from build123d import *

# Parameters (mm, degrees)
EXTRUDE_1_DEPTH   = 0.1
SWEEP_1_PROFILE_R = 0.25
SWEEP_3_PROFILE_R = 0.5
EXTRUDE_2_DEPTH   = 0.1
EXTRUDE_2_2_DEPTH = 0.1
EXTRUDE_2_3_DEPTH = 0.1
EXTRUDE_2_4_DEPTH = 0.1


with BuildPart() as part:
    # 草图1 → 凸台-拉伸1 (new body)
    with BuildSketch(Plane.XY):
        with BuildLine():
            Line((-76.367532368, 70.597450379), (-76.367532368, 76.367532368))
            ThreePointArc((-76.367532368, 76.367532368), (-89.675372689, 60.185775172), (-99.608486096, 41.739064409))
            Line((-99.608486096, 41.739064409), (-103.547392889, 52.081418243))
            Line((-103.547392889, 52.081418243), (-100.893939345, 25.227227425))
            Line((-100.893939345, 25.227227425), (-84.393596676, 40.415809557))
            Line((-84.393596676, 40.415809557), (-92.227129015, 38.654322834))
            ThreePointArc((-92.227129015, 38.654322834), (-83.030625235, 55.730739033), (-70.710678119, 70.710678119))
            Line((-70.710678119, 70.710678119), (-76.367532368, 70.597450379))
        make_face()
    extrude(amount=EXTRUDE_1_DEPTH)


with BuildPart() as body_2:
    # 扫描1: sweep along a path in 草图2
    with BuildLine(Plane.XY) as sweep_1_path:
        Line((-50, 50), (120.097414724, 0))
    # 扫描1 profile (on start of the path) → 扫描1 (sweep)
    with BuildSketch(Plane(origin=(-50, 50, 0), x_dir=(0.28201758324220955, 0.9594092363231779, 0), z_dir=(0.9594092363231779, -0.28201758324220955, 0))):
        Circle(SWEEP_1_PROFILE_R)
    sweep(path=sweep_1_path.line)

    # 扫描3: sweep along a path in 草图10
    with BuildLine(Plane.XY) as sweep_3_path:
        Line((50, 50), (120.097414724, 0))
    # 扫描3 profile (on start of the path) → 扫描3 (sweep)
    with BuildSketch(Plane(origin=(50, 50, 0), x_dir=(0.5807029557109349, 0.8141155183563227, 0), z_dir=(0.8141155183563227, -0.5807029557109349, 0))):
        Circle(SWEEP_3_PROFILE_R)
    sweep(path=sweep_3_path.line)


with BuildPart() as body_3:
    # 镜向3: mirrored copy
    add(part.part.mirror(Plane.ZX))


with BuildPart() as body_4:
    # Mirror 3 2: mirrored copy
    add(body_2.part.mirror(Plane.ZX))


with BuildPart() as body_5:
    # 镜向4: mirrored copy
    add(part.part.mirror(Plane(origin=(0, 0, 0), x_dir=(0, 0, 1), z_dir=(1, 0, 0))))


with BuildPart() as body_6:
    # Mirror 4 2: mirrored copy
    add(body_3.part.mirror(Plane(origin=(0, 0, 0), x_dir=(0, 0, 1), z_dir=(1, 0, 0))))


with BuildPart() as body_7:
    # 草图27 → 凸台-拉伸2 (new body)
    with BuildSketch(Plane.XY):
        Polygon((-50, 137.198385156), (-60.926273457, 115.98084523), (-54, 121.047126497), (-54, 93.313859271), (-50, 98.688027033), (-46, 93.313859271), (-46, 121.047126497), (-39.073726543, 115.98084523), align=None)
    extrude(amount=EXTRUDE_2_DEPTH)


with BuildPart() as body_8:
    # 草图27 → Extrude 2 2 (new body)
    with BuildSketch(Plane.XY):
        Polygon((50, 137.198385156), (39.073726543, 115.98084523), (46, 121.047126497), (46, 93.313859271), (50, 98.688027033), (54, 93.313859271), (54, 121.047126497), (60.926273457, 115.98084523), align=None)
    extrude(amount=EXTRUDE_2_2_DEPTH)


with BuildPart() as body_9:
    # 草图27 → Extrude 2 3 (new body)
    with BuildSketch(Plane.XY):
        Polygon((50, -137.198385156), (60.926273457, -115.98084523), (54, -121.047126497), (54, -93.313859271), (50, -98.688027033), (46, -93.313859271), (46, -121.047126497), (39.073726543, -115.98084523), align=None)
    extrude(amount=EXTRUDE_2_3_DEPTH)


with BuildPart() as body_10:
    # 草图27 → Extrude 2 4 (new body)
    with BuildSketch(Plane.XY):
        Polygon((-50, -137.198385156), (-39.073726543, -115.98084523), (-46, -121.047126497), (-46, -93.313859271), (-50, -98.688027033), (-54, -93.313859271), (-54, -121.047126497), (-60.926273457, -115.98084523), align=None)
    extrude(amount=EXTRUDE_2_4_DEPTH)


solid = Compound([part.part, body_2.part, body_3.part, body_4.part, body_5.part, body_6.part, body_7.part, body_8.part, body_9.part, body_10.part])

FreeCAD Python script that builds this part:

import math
import FreeCAD as App
import Part
import Sketcher

V = App.Vector
Q = App.Units.Quantity

doc = App.newDocument("Part")
body = doc.addObject("PartDesign::Body", "Body")

sketch1 = body.newObject("Sketcher::SketchObject", "Sketch")
sketch1.AttachmentSupport = (doc.getObject("XY_Plane"), [""])
sketch1.MapMode = "FlatFace"
sketch1.addGeometry([
    Part.LineSegment(V(-76, 71, 0), V(-76, 76, 0)),
    Part.ArcOfCircle(Part.Circle(V(0, 0, 0), V(0, 0, 1), 108), math.radians(135), math.radians(157)),
    Part.LineSegment(V(-100, 42, 0), V(-104, 52, 0)),
    Part.LineSegment(V(-104, 52, 0), V(-101, 25, 0)),
    Part.LineSegment(V(-101, 25, 0), V(-84, 40, 0)),
    Part.LineSegment(V(-84, 40, 0), V(-92, 39, 0)),
    Part.ArcOfCircle(Part.Circle(V(0, 0, 0), V(0, 0, 1), 100), math.radians(135), math.radians(157)),
    Part.LineSegment(V(-71, 71, 0), V(-76, 71, 0)),
], False)
sketch1.addConstraint([
    Sketcher.Constraint("Coincident", 0, 2, 1, 1),
    Sketcher.Constraint("Coincident", 1, 2, 2, 1),
    Sketcher.Constraint("Coincident", 2, 2, 3, 1),
    Sketcher.Constraint("Coincident", 3, 2, 4, 1),
    Sketcher.Constraint("Coincident", 4, 2, 5, 1),
    Sketcher.Constraint("Coincident", 5, 2, 6, 2),
    Sketcher.Constraint("Coincident", 6, 1, 7, 1),
    Sketcher.Constraint("Coincident", 7, 2, 0, 1),
    Sketcher.Constraint("Vertical", 0),
    Sketcher.Constraint("Coincident", 1, 3, -1, 1),
    Sketcher.Constraint("Coincident", 6, 3, -1, 1),
    Sketcher.Constraint("Radius", 1, Q("108 mm")),
    Sketcher.Constraint("Radius", 6, Q("100 mm")),
    Sketcher.Constraint("DistanceY", 0, 1, 0, 2, Q("5.770082 mm")),
    Sketcher.Constraint("Distance", 5, Q("8.029138 mm")),
    Sketcher.Constraint("DistanceY", -1, 1, 2, 2, Q("52.081418 mm")),
    Sketcher.Constraint("DistanceX", 3, 2, -1, 1, Q("100.893939 mm")),
    Sketcher.Constraint("DistanceY", -1, 1, 4, 2, Q("40.41581 mm")),
    Sketcher.Constraint("DistanceX", 5, 2, -1, 1, Q("92.227129 mm")),
    Sketcher.Constraint("DistanceX", 6, 1, -1, 1, Q("70.710678 mm")),
    Sketcher.Constraint("DistanceY", -1, 1, 7, 2, Q("70.59745 mm")),
    Sketcher.Constraint("DistanceX", 2, 2, 0, 2, Q("27.179861 mm")),
    Sketcher.Constraint("DistanceY", 3, 2, 2, 2, Q("26.854191 mm")),
    Sketcher.Constraint("DistanceX", 1, 2, 4, 2, Q("15.214889 mm")),
])
pad1 = body.newObject("PartDesign::Pad", "Pad")
pad1.Profile = sketch1
pad1.Length = 0.1
body2 = doc.addObject("PartDesign::Body", "Body001")

sketch2 = body2.newObject("Sketcher::SketchObject", "Sketch001")
sketch2.Placement = App.Placement(V(-50, 50, 0), App.Rotation(V(0.282017583, 0.959409236, 0), V(0, 0, 0.999999999), V(0.959409236, -0.282017583, 0), "ZXY"))
sketch2.addGeometry(Part.Circle(V(0, 0, 0), V(0, 0, 1), 0.25), False)
sketch2.addConstraint([
    Sketcher.Constraint("Coincident", 0, 3, -1, 1),
    Sketcher.Constraint("Diameter", 0, Q("0.5 mm")),
])

sketch3 = body2.newObject("Sketcher::SketchObject", "Sketch002")
sketch3.Placement = App.Placement(V(9.551818, 32.49479, 0), App.Rotation(V(0.959409236, -0.282017583, 0), V(0, 0, 0.999999999), V(-0.282017583, -0.959409236, 0), "ZXY"))
sketch3.addGeometry(Part.LineSegment(V(-62, 0, 0), V(115, 0, 0)), False)
sketch3.addConstraint([
    Sketcher.Constraint("Horizontal", 0),
    Sketcher.Constraint("PointOnObject", 0, 1, -1),
    Sketcher.Constraint("DistanceX", 0, 1, 0, 2, Q("177.29391 mm")),
    Sketcher.Constraint("DistanceX", 0, 1, -1, 1, Q("62.071341 mm")),
])
doc.recompute()

additivepipe = body2.newObject("PartDesign::AdditivePipe", "AdditivePipe")
additivepipe.Profile = sketch2
additivepipe.Spine = (sketch3, ["Edge1"])

sketch4 = body2.newObject("Sketcher::SketchObject", "Sketch003")
sketch4.Placement = App.Placement(V(50, 50, 0), App.Rotation(V(0.580702956, 0.814115518, 0), V(0, 0, 1), V(0.814115518, -0.580702956, 0), "ZXY"))
sketch4.addGeometry(Part.Circle(V(0, 0, 0), V(0, 0, 1), 0.5), False)
sketch4.addConstraint([
    Sketcher.Constraint("Coincident", 0, 3, -1, 1),
    Sketcher.Constraint("Diameter", 0, Q("1 mm")),
])

sketch5 = body2.newObject("Sketcher::SketchObject", "Sketch004")
sketch5.Placement = App.Placement(V(40.498761, 56.777168, 0), App.Rotation(V(0.814115518, -0.580702956, 0), V(0, 0, 1), V(-0.580702956, -0.814115518, 0), "ZXY"))
sketch5.addGeometry(Part.LineSegment(V(12, 0, 0), V(98, 0, 0)), False)
sketch5.addConstraint([
    Sketcher.Constraint("Horizontal", 0),
    Sketcher.Constraint("PointOnObject", 0, 1, -1),
    Sketcher.Constraint("DistanceX", 0, 1, 0, 2, Q("86.102541 mm")),
    Sketcher.Constraint("DistanceX", -1, 1, 0, 1, Q("11.670628 mm")),
])
doc.recompute()

additivepipe2 = body2.newObject("PartDesign::AdditivePipe", "AdditivePipe001")
additivepipe2.Profile = sketch4
additivepipe2.Spine = (sketch5, ["Edge1"])
body3 = doc.addObject("PartDesign::Body", "Body002")
doc.recompute()

mirroring = doc.addObject("Part::Mirroring", "Mirroring")
mirroring.Source = body
mirroring.Base = V(0, 0, 0)
mirroring.Normal = V(0, 1, 0)
body3.BaseFeature = mirroring
doc.recompute()
body4 = doc.addObject("PartDesign::Body", "Body003")
doc.recompute()

mirroring2 = doc.addObject("Part::Mirroring", "Mirroring001")
mirroring2.Source = body2
mirroring2.Base = V(0, 0, 0)
mirroring2.Normal = V(0, 1, 0)
body4.BaseFeature = mirroring2
doc.recompute()
body5 = doc.addObject("PartDesign::Body", "Body004")
doc.recompute()

mirroring3 = doc.addObject("Part::Mirroring", "Mirroring002")
mirroring3.Source = body
mirroring3.Base = V(0, 0, 0)
mirroring3.Normal = V(1, 0, 0)
body5.BaseFeature = mirroring3
doc.recompute()
body6 = doc.addObject("PartDesign::Body", "Body005")
doc.recompute()

mirroring4 = doc.addObject("Part::Mirroring", "Mirroring003")
mirroring4.Source = body3
mirroring4.Base = V(0, 0, 0)
mirroring4.Normal = V(1, 0, 0)
body6.BaseFeature = mirroring4
doc.recompute()
body7 = doc.addObject("PartDesign::Body", "Body006")

sketch6 = body7.newObject("Sketcher::SketchObject", "Sketch005")
sketch6.AttachmentSupport = (doc.getObject("XY_Plane006"), [""])
sketch6.MapMode = "FlatFace"
sketch6.addGeometry([
    Part.LineSegment(V(-50, 137, 0), V(-61, 116, 0)),
    Part.LineSegment(V(-61, 116, 0), V(-54, 121, 0)),
    Part.LineSegment(V(-54, 121, 0), V(-54, 93, 0)),
    Part.LineSegment(V(-54, 93, 0), V(-50, 99, 0)),
    Part.LineSegment(V(-50, 99, 0), V(-46, 93, 0)),
    Part.LineSegment(V(-46, 93, 0), V(-46, 121, 0)),
    Part.LineSegment(V(-46, 121, 0), V(-39, 116, 0)),
    Part.LineSegment(V(-39, 116, 0), V(-50, 137, 0)),
], False)
sketch6.addConstraint([
    Sketcher.Constraint("Coincident", 0, 2, 1, 1),
    Sketcher.Constraint("Coincident", 1, 2, 2, 1),
    Sketcher.Constraint("Coincident", 2, 2, 3, 1),
    Sketcher.Constraint("Coincident", 3, 2, 4, 1),
    Sketcher.Constraint("Coincident", 4, 2, 5, 1),
    Sketcher.Constraint("Coincident", 5, 2, 6, 1),
    Sketcher.Constraint("Coincident", 6, 2, 7, 1),
    Sketcher.Constraint("Coincident", 7, 2, 0, 1),
    Sketcher.Constraint("Vertical", 2),
    Sketcher.Constraint("Vertical", 5),
    Sketcher.Constraint("Horizontal", 2, 2, 4, 2),
    Sketcher.Constraint("Horizontal", 1, 2, 5, 2),
    Sketcher.Constraint("Horizontal", 0, 2, 6, 2),
    Sketcher.Constraint("Vertical", 3, 2, 7, 2),
    Sketcher.Constraint("Equal", 3, 4),
    Sketcher.Constraint("Equal", 1, 6),
    Sketcher.Constraint("DistanceX", 1, 2, -1, 1, Q("54 mm")),
    Sketcher.Constraint("DistanceX", 3, 2, -1, 1, Q("50 mm")),
    Sketcher.Constraint("DistanceY", 3, 2, 1, 2, Q("22.359099 mm")),
    Sketcher.Constraint("Distance", 3, Q("6.699379 mm")),
    Sketcher.Constraint("DistanceY", -1, 1, 2, 2, Q("93.313859 mm")),
    Sketcher.Constraint("DistanceY", 0, 2, 1, 2, Q("5.066281 mm")),
    Sketcher.Constraint("DistanceY", 1, 2, 7, 2, Q("16.151259 mm")),
    Sketcher.Constraint("Distance", 0, Q("23.865612 mm")),
])
pad2 = body7.newObject("PartDesign::Pad", "Pad001")
pad2.Profile = sketch6
pad2.Length = 0.1
body8 = doc.addObject("PartDesign::Body", "Body007")

sketch7 = body8.newObject("Sketcher::SketchObject", "Sketch006")
sketch7.AttachmentSupport = (doc.getObject("XY_Plane007"), [""])
sketch7.MapMode = "FlatFace"
sketch7.addGeometry([
    Part.LineSegment(V(50, 137, 0), V(39, 116, 0)),
    Part.LineSegment(V(39, 116, 0), V(46, 121, 0)),
    Part.LineSegment(V(46, 121, 0), V(46, 93, 0)),
    Part.LineSegment(V(46, 93, 0), V(50, 99, 0)),
    Part.LineSegment(V(50, 99, 0), V(54, 93, 0)),
    Part.LineSegment(V(54, 93, 0), V(54, 121, 0)),
    Part.LineSegment(V(54, 121, 0), V(61, 116, 0)),
    Part.LineSegment(V(61, 116, 0), V(50, 137, 0)),
], False)
sketch7.addConstraint([
    Sketcher.Constraint("Coincident", 0, 2, 1, 1),
    Sketcher.Constraint("Coincident", 1, 2, 2, 1),
    Sketcher.Constraint("Coincident", 2, 2, 3, 1),
    Sketcher.Constraint("Coincident", 3, 2, 4, 1),
    Sketcher.Constraint("Coincident", 4, 2, 5, 1),
    Sketcher.Constraint("Coincident", 5, 2, 6, 1),
    Sketcher.Constraint("Coincident", 6, 2, 7, 1),
    Sketcher.Constraint("Coincident", 7, 2, 0, 1),
    Sketcher.Constraint("Vertical", 2),
    Sketcher.Constraint("Vertical", 5),
    Sketcher.Constraint("Horizontal", 2, 2, 4, 2),
    Sketcher.Constraint("Horizontal", 1, 2, 5, 2),
    Sketcher.Constraint("Horizontal", 0, 2, 6, 2),
    Sketcher.Constraint("Vertical", 3, 2, 7, 2),
    Sketcher.Constraint("Equal", 3, 4),
    Sketcher.Constraint("Equal", 1, 6),
    Sketcher.Constraint("DistanceX", -1, 1, 1, 2, Q("46 mm")),
    Sketcher.Constraint("DistanceX", -1, 1, 3, 2, Q("50 mm")),
    Sketcher.Constraint("DistanceY", 3, 2, 1, 2, Q("22.359099 mm")),
    Sketcher.Constraint("Distance", 3, Q("6.699379 mm")),
    Sketcher.Constraint("DistanceY", -1, 1, 2, 2, Q("93.313859 mm")),
    Sketcher.Constraint("DistanceY", 0, 2, 1, 2, Q("5.066281 mm")),
    Sketcher.Constraint("DistanceY", 1, 2, 7, 2, Q("16.151259 mm")),
    Sketcher.Constraint("Distance", 0, Q("23.865612 mm")),
])
pad3 = body8.newObject("PartDesign::Pad", "Pad002")
pad3.Profile = sketch7
pad3.Length = 0.1
body9 = doc.addObject("PartDesign::Body", "Body008")

sketch8 = body9.newObject("Sketcher::SketchObject", "Sketch007")
sketch8.AttachmentSupport = (doc.getObject("XY_Plane008"), [""])
sketch8.MapMode = "FlatFace"
sketch8.addGeometry([
    Part.LineSegment(V(50, -137, 0), V(61, -116, 0)),
    Part.LineSegment(V(61, -116, 0), V(54, -121, 0)),
    Part.LineSegment(V(54, -121, 0), V(54, -93, 0)),
    Part.LineSegment(V(54, -93, 0), V(50, -99, 0)),
    Part.LineSegment(V(50, -99, 0), V(46, -93, 0)),
    Part.LineSegment(V(46, -93, 0), V(46, -121, 0)),
    Part.LineSegment(V(46, -121, 0), V(39, -116, 0)),
    Part.LineSegment(V(39, -116, 0), V(50, -137, 0)),
], False)
sketch8.addConstraint([
    Sketcher.Constraint("Coincident", 0, 2, 1, 1),
    Sketcher.Constraint("Coincident", 1, 2, 2, 1),
    Sketcher.Constraint("Coincident", 2, 2, 3, 1),
    Sketcher.Constraint("Coincident", 3, 2, 4, 1),
    Sketcher.Constraint("Coincident", 4, 2, 5, 1),
    Sketcher.Constraint("Coincident", 5, 2, 6, 1),
    Sketcher.Constraint("Coincident", 6, 2, 7, 1),
    Sketcher.Constraint("Coincident", 7, 2, 0, 1),
    Sketcher.Constraint("Vertical", 2),
    Sketcher.Constraint("Vertical", 5),
    Sketcher.Constraint("Horizontal", 2, 2, 4, 2),
    Sketcher.Constraint("Horizontal", 1, 2, 5, 2),
    Sketcher.Constraint("Horizontal", 0, 2, 6, 2),
    Sketcher.Constraint("Vertical", 3, 2, 7, 2),
    Sketcher.Constraint("Equal", 3, 4),
    Sketcher.Constraint("Equal", 1, 6),
    Sketcher.Constraint("DistanceX", -1, 1, 1, 2, Q("54 mm")),
    Sketcher.Constraint("DistanceX", -1, 1, 3, 2, Q("50 mm")),
    Sketcher.Constraint("DistanceY", 1, 2, 3, 2, Q("22.359099 mm")),
    Sketcher.Constraint("Distance", 3, Q("6.699379 mm")),
    Sketcher.Constraint("DistanceY", 2, 2, -1, 1, Q("93.313859 mm")),
    Sketcher.Constraint("DistanceY", 1, 2, 0, 2, Q("5.066281 mm")),
    Sketcher.Constraint("DistanceY", 7, 2, 1, 2, Q("16.151259 mm")),
    Sketcher.Constraint("Distance", 0, Q("23.865612 mm")),
])
pad4 = body9.newObject("PartDesign::Pad", "Pad003")
pad4.Profile = sketch8
pad4.Length = 0.1
body10 = doc.addObject("PartDesign::Body", "Body009")

sketch9 = body10.newObject("Sketcher::SketchObject", "Sketch008")
sketch9.AttachmentSupport = (doc.getObject("XY_Plane009"), [""])
sketch9.MapMode = "FlatFace"
sketch9.addGeometry([
    Part.LineSegment(V(-50, -137, 0), V(-39, -116, 0)),
    Part.LineSegment(V(-39, -116, 0), V(-46, -121, 0)),
    Part.LineSegment(V(-46, -121, 0), V(-46, -93, 0)),
    Part.LineSegment(V(-46, -93, 0), V(-50, -99, 0)),
    Part.LineSegment(V(-50, -99, 0), V(-54, -93, 0)),
    Part.LineSegment(V(-54, -93, 0), V(-54, -121, 0)),
    Part.LineSegment(V(-54, -121, 0), V(-61, -116, 0)),
    Part.LineSegment(V(-61, -116, 0), V(-50, -137, 0)),
], False)
sketch9.addConstraint([
    Sketcher.Constraint("Coincident", 0, 2, 1, 1),
    Sketcher.Constraint("Coincident", 1, 2, 2, 1),
    Sketcher.Constraint("Coincident", 2, 2, 3, 1),
    Sketcher.Constraint("Coincident", 3, 2, 4, 1),
    Sketcher.Constraint("Coincident", 4, 2, 5, 1),
    Sketcher.Constraint("Coincident", 5, 2, 6, 1),
    Sketcher.Constraint("Coincident", 6, 2, 7, 1),
    Sketcher.Constraint("Coincident", 7, 2, 0, 1),
    Sketcher.Constraint("Vertical", 2),
    Sketcher.Constraint("Vertical", 5),
    Sketcher.Constraint("Horizontal", 2, 2, 4, 2),
    Sketcher.Constraint("Horizontal", 1, 2, 5, 2),
    Sketcher.Constraint("Horizontal", 0, 2, 6, 2),
    Sketcher.Constraint("Vertical", 3, 2, 7, 2),
    Sketcher.Constraint("Equal", 3, 4),
    Sketcher.Constraint("Equal", 1, 6),
    Sketcher.Constraint("DistanceX", 1, 2, -1, 1, Q("46 mm")),
    Sketcher.Constraint("DistanceX", 3, 2, -1, 1, Q("50 mm")),
    Sketcher.Constraint("DistanceY", 1, 2, 3, 2, Q("22.359099 mm")),
    Sketcher.Constraint("Distance", 3, Q("6.699379 mm")),
    Sketcher.Constraint("DistanceY", 2, 2, -1, 1, Q("93.313859 mm")),
    Sketcher.Constraint("DistanceY", 1, 2, 0, 2, Q("5.066281 mm")),
    Sketcher.Constraint("DistanceY", 7, 2, 1, 2, Q("16.151259 mm")),
    Sketcher.Constraint("Distance", 0, Q("23.865612 mm")),
])
pad5 = body10.newObject("PartDesign::Pad", "Pad004")
pad5.Profile = sketch9
pad5.Length = 0.1
mirroring.Visibility = False
mirroring2.Visibility = False
mirroring3.Visibility = False
mirroring4.Visibility = False

doc.recompute()
